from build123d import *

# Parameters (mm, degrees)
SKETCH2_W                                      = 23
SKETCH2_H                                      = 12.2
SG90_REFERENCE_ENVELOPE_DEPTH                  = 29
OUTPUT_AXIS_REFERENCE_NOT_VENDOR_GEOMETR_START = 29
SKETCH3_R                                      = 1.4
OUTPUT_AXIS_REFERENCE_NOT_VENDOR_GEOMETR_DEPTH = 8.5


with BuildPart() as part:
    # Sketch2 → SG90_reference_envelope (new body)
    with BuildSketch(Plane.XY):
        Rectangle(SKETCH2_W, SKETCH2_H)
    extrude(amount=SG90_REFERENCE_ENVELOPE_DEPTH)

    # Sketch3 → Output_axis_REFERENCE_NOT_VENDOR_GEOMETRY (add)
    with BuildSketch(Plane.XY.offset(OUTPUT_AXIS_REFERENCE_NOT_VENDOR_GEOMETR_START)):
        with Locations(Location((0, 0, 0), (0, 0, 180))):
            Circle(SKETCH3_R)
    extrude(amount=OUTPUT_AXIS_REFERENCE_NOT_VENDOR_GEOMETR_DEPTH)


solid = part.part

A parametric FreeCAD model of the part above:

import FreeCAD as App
import Part
import Sketcher
Q = App.Units.Quantity


def add_polygon(sketch, points):
    """Adds a closed chain of lines whose ends are joined by coincident constraints."""
    first, n = sketch.GeometryCount, len(points)
    for a, b in zip(points, points[1:] + points[:1]):
        sketch.addGeometry(Part.LineSegment(App.Vector(*a, 0), App.Vector(*b, 0)), False)
    for i in range(n):
        sketch.addConstraint(Sketcher.Constraint("Coincident", first + i, 2, first + (i + 1) % n, 1))

doc = App.newDocument("Part")
params = doc.addObject("Spreadsheet::Sheet", "Params")
for row, (alias, value) in enumerate([
    ("sketch1_width", "23 mm"),
    ("sketch1_height", "12.2 mm"),
    ("pad1_length", "29 mm"),
    ("sketch2_diameter", "2.8 mm"),
    ("pad2_length", "8.5 mm"),
], start=1):
    params.set(f"A{row}", alias)
    params.set(f"B{row}", "=" + value)
    params.setAlias(f"B{row}", alias)

body = doc.addObject("PartDesign::Body", "Body")

# Sketch on XY plane
sketch1 = body.newObject("Sketcher::SketchObject", "Sketch")
sketch1.AttachmentSupport = (doc.getObject("XY_Plane"), [""])
sketch1.MapMode = "FlatFace"
add_polygon(sketch1, [(-12, 6), (-12, -6), (12, -6), (12, 6)])  # lines 0-3
sketch1.addConstraint([
    Sketcher.Constraint("Vertical", 0),
    Sketcher.Constraint("Horizontal", 1),
    Sketcher.Constraint("Vertical", 2),
    Sketcher.Constraint("Horizontal", 3),
    Sketcher.Constraint("Symmetric", 0, 2, 2, 2, -1, 1),
    Sketcher.Constraint("DistanceX", 1, 1, 1, 2, Q("23 mm")),
    Sketcher.Constraint("DistanceY", 0, 2, 0, 1, Q("12.2 mm")),
])
sketch1.setExpression("Constraints[9]", "Params.sketch1_width")
sketch1.setExpression("Constraints[10]", "Params.sketch1_height")
pad1 = body.newObject("PartDesign::Pad", "Pad")
pad1.Profile = sketch1
pad1.setExpression("Length", "Params.pad1_length")

# Sketch on XY plane
sketch2 = body.newObject("Sketcher::SketchObject", "Sketch001")
sketch2.AttachmentSupport = (doc.getObject("XY_Plane"), [""])
sketch2.MapMode = "FlatFace"
sketch2.AttachmentOffset = App.Placement(App.Vector(0, 0, 29), App.Rotation())
sketch2.addGeometry(Part.Circle(App.Vector(0, 0, 0), App.Vector(0, 0, 1), 1.4), False)
sketch2.addConstraint([
    Sketcher.Constraint("Coincident", 0, 3, -1, 1),
    Sketcher.Constraint("Diameter", 0, Q("2.8 mm")),
])
sketch2.setExpression("Constraints[1]", "Params.sketch2_diameter")
pad2 = body.newObject("PartDesign::Pad", "Pad001")
pad2.Profile = sketch2
pad2.setExpression("Length", "Params.pad2_length")

doc.recompute()
